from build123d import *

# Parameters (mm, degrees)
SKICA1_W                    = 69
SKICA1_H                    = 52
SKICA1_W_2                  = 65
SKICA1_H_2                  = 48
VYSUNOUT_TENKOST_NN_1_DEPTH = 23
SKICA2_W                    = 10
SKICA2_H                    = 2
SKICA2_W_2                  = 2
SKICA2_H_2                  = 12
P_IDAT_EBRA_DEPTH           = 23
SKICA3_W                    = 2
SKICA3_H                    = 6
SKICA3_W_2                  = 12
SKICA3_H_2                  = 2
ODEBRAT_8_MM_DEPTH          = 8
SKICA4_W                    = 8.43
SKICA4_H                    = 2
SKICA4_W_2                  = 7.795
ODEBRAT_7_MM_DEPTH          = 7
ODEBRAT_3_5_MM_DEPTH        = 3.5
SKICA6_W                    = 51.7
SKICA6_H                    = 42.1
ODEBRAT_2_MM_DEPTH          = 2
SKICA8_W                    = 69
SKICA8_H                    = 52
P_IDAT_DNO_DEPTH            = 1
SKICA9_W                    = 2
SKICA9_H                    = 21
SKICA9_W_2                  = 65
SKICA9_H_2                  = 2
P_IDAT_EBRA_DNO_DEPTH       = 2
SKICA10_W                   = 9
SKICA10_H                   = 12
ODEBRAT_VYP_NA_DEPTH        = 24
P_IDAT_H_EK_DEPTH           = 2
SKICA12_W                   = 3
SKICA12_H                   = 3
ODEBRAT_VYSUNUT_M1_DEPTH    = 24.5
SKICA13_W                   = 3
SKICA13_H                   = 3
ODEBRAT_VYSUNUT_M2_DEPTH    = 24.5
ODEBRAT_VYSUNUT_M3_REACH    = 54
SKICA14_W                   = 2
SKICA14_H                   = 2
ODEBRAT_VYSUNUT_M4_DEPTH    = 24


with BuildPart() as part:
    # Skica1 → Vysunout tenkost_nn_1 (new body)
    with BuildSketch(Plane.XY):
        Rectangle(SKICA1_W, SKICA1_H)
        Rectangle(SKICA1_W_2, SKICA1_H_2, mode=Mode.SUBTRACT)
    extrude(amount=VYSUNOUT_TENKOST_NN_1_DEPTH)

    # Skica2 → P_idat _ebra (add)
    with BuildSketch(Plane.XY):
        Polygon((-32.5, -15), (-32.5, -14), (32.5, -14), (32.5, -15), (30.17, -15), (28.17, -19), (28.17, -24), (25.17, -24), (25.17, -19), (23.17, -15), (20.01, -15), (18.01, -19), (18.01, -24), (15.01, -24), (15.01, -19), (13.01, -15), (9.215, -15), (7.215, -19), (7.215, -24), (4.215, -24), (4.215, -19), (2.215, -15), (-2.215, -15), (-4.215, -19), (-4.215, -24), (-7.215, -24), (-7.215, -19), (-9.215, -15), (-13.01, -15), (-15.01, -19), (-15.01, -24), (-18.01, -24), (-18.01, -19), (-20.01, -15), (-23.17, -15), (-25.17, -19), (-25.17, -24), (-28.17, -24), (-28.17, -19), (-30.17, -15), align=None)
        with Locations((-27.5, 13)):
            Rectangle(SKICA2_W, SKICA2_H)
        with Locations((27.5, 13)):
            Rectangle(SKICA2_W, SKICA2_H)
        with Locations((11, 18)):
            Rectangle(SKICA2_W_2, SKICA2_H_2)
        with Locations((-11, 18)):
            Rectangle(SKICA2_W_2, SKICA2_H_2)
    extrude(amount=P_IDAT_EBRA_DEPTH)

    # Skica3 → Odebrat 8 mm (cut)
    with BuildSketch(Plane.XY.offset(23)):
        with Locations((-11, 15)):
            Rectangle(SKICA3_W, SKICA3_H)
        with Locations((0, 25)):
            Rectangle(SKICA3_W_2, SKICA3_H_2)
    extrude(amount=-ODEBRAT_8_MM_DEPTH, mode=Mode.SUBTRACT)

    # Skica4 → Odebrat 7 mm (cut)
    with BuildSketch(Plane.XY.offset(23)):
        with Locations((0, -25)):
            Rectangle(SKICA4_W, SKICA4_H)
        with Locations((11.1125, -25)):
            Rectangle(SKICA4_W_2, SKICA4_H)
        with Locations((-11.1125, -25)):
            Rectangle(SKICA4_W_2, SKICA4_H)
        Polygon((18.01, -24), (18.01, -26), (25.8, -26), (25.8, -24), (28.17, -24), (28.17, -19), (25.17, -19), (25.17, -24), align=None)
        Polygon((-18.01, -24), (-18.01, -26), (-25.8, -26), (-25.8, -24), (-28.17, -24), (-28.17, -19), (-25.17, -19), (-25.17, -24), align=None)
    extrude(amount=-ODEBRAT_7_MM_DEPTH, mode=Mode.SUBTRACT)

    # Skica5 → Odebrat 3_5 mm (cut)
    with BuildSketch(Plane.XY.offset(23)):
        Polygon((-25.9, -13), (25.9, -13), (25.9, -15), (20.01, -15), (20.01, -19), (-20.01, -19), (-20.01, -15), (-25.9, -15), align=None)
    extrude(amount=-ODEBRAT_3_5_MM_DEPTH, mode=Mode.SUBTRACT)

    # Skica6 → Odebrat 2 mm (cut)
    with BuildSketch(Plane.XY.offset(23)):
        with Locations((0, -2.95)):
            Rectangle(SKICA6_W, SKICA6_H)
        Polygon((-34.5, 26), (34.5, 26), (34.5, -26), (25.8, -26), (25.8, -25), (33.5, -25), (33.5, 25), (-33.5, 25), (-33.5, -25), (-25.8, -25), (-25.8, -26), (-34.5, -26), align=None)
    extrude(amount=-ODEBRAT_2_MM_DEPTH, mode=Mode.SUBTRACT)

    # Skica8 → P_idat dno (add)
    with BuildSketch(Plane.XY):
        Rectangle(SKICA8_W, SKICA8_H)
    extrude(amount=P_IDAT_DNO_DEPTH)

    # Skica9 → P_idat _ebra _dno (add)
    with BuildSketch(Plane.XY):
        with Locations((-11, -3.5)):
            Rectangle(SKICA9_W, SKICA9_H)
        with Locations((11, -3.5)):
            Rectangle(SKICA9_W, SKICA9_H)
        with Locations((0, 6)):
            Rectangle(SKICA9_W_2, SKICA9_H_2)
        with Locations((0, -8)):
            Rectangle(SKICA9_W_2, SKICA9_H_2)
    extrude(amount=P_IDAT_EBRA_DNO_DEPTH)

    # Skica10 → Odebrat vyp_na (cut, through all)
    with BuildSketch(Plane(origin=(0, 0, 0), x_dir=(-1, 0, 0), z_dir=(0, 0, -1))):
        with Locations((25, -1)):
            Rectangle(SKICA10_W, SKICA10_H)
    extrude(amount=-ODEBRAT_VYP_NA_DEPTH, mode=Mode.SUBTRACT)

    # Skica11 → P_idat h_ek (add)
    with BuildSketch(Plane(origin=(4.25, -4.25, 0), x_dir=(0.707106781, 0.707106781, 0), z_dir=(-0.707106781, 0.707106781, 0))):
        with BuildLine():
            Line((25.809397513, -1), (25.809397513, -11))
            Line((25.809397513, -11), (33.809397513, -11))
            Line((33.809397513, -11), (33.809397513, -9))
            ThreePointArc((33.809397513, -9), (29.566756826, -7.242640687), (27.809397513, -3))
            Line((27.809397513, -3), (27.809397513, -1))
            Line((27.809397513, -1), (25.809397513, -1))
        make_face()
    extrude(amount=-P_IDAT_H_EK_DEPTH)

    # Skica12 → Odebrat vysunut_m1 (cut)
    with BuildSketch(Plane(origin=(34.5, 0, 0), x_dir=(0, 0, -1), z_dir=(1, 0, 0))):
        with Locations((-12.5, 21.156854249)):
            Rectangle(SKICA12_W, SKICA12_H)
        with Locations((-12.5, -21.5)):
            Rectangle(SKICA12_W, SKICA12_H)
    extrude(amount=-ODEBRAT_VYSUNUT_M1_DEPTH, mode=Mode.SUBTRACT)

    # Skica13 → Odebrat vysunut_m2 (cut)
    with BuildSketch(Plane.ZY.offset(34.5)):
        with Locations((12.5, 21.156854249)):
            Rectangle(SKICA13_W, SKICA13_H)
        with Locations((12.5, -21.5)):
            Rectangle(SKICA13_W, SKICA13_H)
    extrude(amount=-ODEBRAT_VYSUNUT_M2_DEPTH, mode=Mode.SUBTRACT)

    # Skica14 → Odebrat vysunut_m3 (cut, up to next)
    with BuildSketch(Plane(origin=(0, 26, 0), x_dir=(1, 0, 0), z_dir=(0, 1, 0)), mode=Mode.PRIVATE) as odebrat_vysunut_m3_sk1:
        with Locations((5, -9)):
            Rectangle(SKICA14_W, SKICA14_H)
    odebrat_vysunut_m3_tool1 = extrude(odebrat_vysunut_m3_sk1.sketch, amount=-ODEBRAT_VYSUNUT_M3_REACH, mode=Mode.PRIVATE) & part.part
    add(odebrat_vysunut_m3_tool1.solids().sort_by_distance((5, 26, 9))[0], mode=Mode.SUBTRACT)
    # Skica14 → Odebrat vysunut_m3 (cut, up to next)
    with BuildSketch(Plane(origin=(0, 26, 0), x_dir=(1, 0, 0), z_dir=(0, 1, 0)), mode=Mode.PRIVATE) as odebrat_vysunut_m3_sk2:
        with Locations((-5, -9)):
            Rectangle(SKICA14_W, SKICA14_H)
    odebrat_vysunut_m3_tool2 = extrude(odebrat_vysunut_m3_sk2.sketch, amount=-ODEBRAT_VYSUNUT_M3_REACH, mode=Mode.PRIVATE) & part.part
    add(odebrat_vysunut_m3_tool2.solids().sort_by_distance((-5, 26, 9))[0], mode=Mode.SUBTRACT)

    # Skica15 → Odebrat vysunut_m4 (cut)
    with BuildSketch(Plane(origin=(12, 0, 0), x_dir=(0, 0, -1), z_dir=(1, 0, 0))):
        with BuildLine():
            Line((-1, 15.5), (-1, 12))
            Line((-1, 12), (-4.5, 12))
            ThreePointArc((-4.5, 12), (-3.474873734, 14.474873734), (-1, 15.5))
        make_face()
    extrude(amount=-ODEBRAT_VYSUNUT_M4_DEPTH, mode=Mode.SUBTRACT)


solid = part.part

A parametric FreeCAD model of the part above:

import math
import FreeCAD as App
import Part
import Sketcher

V = App.Vector
Q = App.Units.Quantity


def add_polygon(sketch, points):
    """Adds a closed chain of lines whose ends are joined by coincident constraints."""
    first, n = sketch.GeometryCount, len(points)
    for a, b in zip(points, points[1:] + points[:1]):
        sketch.addGeometry(Part.LineSegment(App.Vector(*a, 0), App.Vector(*b, 0)), False)
    for i in range(n):
        sketch.addConstraint(Sketcher.Constraint("Coincident", first + i, 2, first + (i + 1) % n, 1))

doc = App.newDocument("Part")
body = doc.addObject("PartDesign::Body", "Body")

sketch1 = doc.addObject("Sketcher::SketchObject", "Sketch")
body.addObject(sketch1)
sketch1.AttachmentSupport = (doc.XY_Plane, [""])
sketch1.MapMode = "FlatFace"
add_polygon(sketch1, [(-34.5, 26), (-34.5, -26), (34.5, -26), (34.5, 26)])
add_polygon(sketch1, [(32.5, -24), (-32.5, -24), (-32.5, 24), (32.5, 24)])
sketch1.addConstraint(Sketcher.Constraint("Vertical", 0))
sketch1.addConstraint(Sketcher.Constraint("Horizontal", 1))
sketch1.addConstraint(Sketcher.Constraint("Vertical", 2))
sketch1.addConstraint(Sketcher.Constraint("Horizontal", 3))
sketch1.addConstraint(Sketcher.Constraint("Horizontal", 4))
sketch1.addConstraint(Sketcher.Constraint("Vertical", 5))
sketch1.addConstraint(Sketcher.Constraint("Horizontal", 6))
sketch1.addConstraint(Sketcher.Constraint("Vertical", 7))
sketch1.addConstraint(Sketcher.Constraint("Symmetric", 0, 2, 2, 2, -1, 1))
sketch1.addConstraint(Sketcher.Constraint("Symmetric", 4, 2, 6, 2, -1, 1))
sketch1.addConstraint(Sketcher.Constraint("DistanceX", 1, 1, 1, 2, Q("69 mm")))
sketch1.addConstraint(Sketcher.Constraint("DistanceX", 4, 2, 4, 1, Q("65 mm")))
sketch1.addConstraint(Sketcher.Constraint("DistanceY", 0, 2, 0, 1, Q("52 mm")))
sketch1.addConstraint(Sketcher.Constraint("DistanceY", 5, 1, 5, 2, Q("48 mm")))
pad1 = doc.addObject("PartDesign::Pad", "Pad")
body.addObject(pad1)
pad1.Profile = sketch1
pad1.Length = 23

sketch2 = doc.addObject("Sketcher::SketchObject", "Sketch001")
body.addObject(sketch2)
sketch2.AttachmentSupport = (doc.XY_Plane, [""])
sketch2.MapMode = "FlatFace"
add_polygon(sketch2, [(-32.5, -14), (-32.5, -15), (-30.17, -15), (-28.17, -19), (-28.17, -24), (-25.17, -24), (-25.17, -19), (-23.17, -15), (-20.01, -15), (-18.01, -19), (-18.01, -24), (-15.01, -24), (-15.01, -19), (-13.01, -15), (-9.215, -15), (-7.215, -19), (-7.215, -24), (-4.215, -24), (-4.215, -19), (-2.215, -15), (2.215, -15), (4.215, -19), (4.215, -24), (7.215, -24), (7.215, -19), (9.215, -15), (13.01, -15), (15.01, -19), (15.01, -24), (18.01, -24), (18.01, -19), (20.01, -15), (23.17, -15), (25.17, -19), (25.17, -24), (28.17, -24), (28.17, -19), (30.17, -15), (32.5, -15), (32.5, -14)])
add_polygon(sketch2, [(-32.5, 14), (-32.5, 12), (-22.5, 12), (-22.5, 14)])
add_polygon(sketch2, [(22.5, 14), (22.5, 12), (32.5, 12), (32.5, 14)])
add_polygon(sketch2, [(10, 24), (10, 12), (12, 12), (12, 24)])
add_polygon(sketch2, [(-12, 24), (-12, 12), (-10, 12), (-10, 24)])
sketch2.addConstraint(Sketcher.Constraint("Vertical", 0))
sketch2.addConstraint(Sketcher.Constraint("Horizontal", 1))
sketch2.addConstraint(Sketcher.Constraint("Vertical", 3))
sketch2.addConstraint(Sketcher.Constraint("Horizontal", 4))
sketch2.addConstraint(Sketcher.Constraint("Vertical", 5))
sketch2.addConstraint(Sketcher.Constraint("Horizontal", 7))
sketch2.addConstraint(Sketcher.Constraint("Vertical", 9))
sketch2.addConstraint(Sketcher.Constraint("Horizontal", 10))
sketch2.addConstraint(Sketcher.Constraint("Vertical", 11))
sketch2.addConstraint(Sketcher.Constraint("Horizontal", 13))
sketch2.addConstraint(Sketcher.Constraint("Vertical", 15))
sketch2.addConstraint(Sketcher.Constraint("Horizontal", 16))
sketch2.addConstraint(Sketcher.Constraint("Vertical", 17))
sketch2.addConstraint(Sketcher.Constraint("Horizontal", 19))
sketch2.addConstraint(Sketcher.Constraint("Vertical", 21))
sketch2.addConstraint(Sketcher.Constraint("Horizontal", 22))
sketch2.addConstraint(Sketcher.Constraint("Vertical", 23))
sketch2.addConstraint(Sketcher.Constraint("Horizontal", 25))
sketch2.addConstraint(Sketcher.Constraint("Vertical", 27))
sketch2.addConstraint(Sketcher.Constraint("Horizontal", 28))
sketch2.addConstraint(Sketcher.Constraint("Vertical", 29))
sketch2.addConstraint(Sketcher.Constraint("Horizontal", 31))
sketch2.addConstraint(Sketcher.Constraint("Vertical", 33))
sketch2.addConstraint(Sketcher.Constraint("Horizontal", 34))
sketch2.addConstraint(Sketcher.Constraint("Vertical", 35))
sketch2.addConstraint(Sketcher.Constraint("Horizontal", 37))
sketch2.addConstraint(Sketcher.Constraint("Vertical", 38))
sketch2.addConstraint(Sketcher.Constraint("Horizontal", 39))
sketch2.addConstraint(Sketcher.Constraint("Vertical", 40))
sketch2.addConstraint(Sketcher.Constraint("Horizontal", 41))
sketch2.addConstraint(Sketcher.Constraint("Vertical", 42))
sketch2.addConstraint(Sketcher.Constraint("Horizontal", 43))
sketch2.addConstraint(Sketcher.Constraint("Vertical", 44))
sketch2.addConstraint(Sketcher.Constraint("Horizontal", 45))
sketch2.addConstraint(Sketcher.Constraint("Vertical", 46))
sketch2.addConstraint(Sketcher.Constraint("Horizontal", 47))
sketch2.addConstraint(Sketcher.Constraint("Vertical", 48))
sketch2.addConstraint(Sketcher.Constraint("Horizontal", 49))
sketch2.addConstraint(Sketcher.Constraint("Vertical", 50))
sketch2.addConstraint(Sketcher.Constraint("Horizontal", 51))
sketch2.addConstraint(Sketcher.Constraint("Vertical", 52))
sketch2.addConstraint(Sketcher.Constraint("Horizontal", 53))
sketch2.addConstraint(Sketcher.Constraint("Vertical", 54))
sketch2.addConstraint(Sketcher.Constraint("Horizontal", 55))
sketch2.addConstraint(Sketcher.Constraint("Symmetric", 38, 2, 43, 2, -1, 1))
sketch2.addConstraint(Sketcher.Constraint("Symmetric", 39, 2, 46, 2, -1, 1))
sketch2.addConstraint(Sketcher.Constraint("Symmetric", 17, 2, 20, 2, -2))
sketch2.addConstraint(Sketcher.Constraint("Symmetric", 15, 2, 22, 2, -2))
sketch2.addConstraint(Sketcher.Constraint("Symmetric", 13, 2, 24, 2, -2))
sketch2.addConstraint(Sketcher.Constraint("Symmetric", 11, 2, 26, 2, -2))
sketch2.addConstraint(Sketcher.Constraint("Symmetric", 9, 2, 28, 2, -2))
sketch2.addConstraint(Sketcher.Constraint("Symmetric", 7, 2, 30, 2, -2))
sketch2.addConstraint(Sketcher.Constraint("Symmetric", 5, 2, 32, 2, -2))
sketch2.addConstraint(Sketcher.Constraint("Symmetric", 3, 2, 34, 2, -2))
sketch2.addConstraint(Sketcher.Constraint("Symmetric", 1, 2, 36, 2, -2))
sketch2.addConstraint(Sketcher.Constraint("Symmetric", 41, 2, 44, 2, -2))
sketch2.addConstraint(Sketcher.Constraint("Symmetric", 49, 2, 52, 2, -2))
sketch2.addConstraint(Sketcher.Constraint("Symmetric", 51, 2, 54, 2, -2))
sketch2.addConstraint(Sketcher.Constraint("Parallel", 2, 8))
sketch2.addConstraint(Sketcher.Constraint("Parallel", 6, 12))
sketch2.addConstraint(Sketcher.Constraint("Parallel", 8, 14))
sketch2.addConstraint(Sketcher.Constraint("Parallel", 12, 18))
sketch2.addConstraint(Sketcher.Constraint("Parallel", 14, 20))
sketch2.addConstraint(Sketcher.Constraint("Parallel", 18, 24))
sketch2.addConstraint(Sketcher.Constraint("Parallel", 20, 26))
sketch2.addConstraint(Sketcher.Constraint("Parallel", 24, 30))
sketch2.addConstraint(Sketcher.Constraint("Parallel", 26, 32))
sketch2.addConstraint(Sketcher.Constraint("Parallel", 30, 36))
sketch2.addConstraint(Sketcher.Constraint("Horizontal", 2, 2, 5, 2))
sketch2.addConstraint(Sketcher.Constraint("Horizontal", 1, 2, 6, 2))
sketch2.addConstraint(Sketcher.Constraint("Horizontal", 5, 2, 8, 2))
sketch2.addConstraint(Sketcher.Constraint("Horizontal", 4, 2, 9, 2))
sketch2.addConstraint(Sketcher.Constraint("Horizontal", 8, 2, 11, 2))
sketch2.addConstraint(Sketcher.Constraint("Horizontal", 7, 2, 12, 2))
sketch2.addConstraint(Sketcher.Constraint("Horizontal", 11, 2, 14, 2))
sketch2.addConstraint(Sketcher.Constraint("Horizontal", 10, 2, 15, 2))
sketch2.addConstraint(Sketcher.Constraint("Horizontal", 14, 2, 17, 2))
sketch2.addConstraint(Sketcher.Constraint("Horizontal", 13, 2, 18, 2))
sketch2.addConstraint(Sketcher.Constraint("Horizontal", 20, 2, 23, 2))
sketch2.addConstraint(Sketcher.Constraint("Horizontal", 45, 2, 48, 2))
sketch2.addConstraint(Sketcher.Constraint("Vertical", 39, 2, 40, 2))
sketch2.addConstraint(Sketcher.Constraint("Equal", 4, 10))
sketch2.addConstraint(Sketcher.Constraint("Equal", 10, 16))
sketch2.addConstraint(Sketcher.Constraint("Equal", 55, 40))
sketch2.addConstraint(Sketcher.Constraint("DistanceX", 4, 1, 4, 2, Q("3 mm")))
sketch2.addConstraint(Sketcher.Constraint("DistanceX", 39, 2, 39, 1, Q("65 mm")))
sketch2.addConstraint(Sketcher.Constraint("DistanceX", 41, 1, 41, 2, Q("10 mm")))
sketch2.addConstraint(Sketcher.Constraint("DistanceX", 49, 1, 49, 2, Q("2 mm")))
sketch2.addConstraint(Sketcher.Constraint("DistanceY", 0, 2, 0, 1, Q("1 mm")))
sketch2.addConstraint(Sketcher.Constraint("DistanceY", 3, 2, 3, 1, Q("5 mm")))
sketch2.addConstraint(Sketcher.Constraint("DistanceY", 48, 2, 48, 1, Q("12 mm")))
sketch2.addConstraint(Sketcher.Constraint("DistanceY", 0, 2, -1, 1, Q("15 mm")))
sketch2.addConstraint(Sketcher.Constraint("DistanceY", 2, 2, -1, 1, Q("19 mm")))
sketch2.addConstraint(Sketcher.Constraint("DistanceX", -1, 1, 48, 2, Q("10 mm")))
sketch2.addConstraint(Sketcher.Constraint("DistanceX", 1, 2, 2, 2, Q("2 mm")))
sketch2.addConstraint(Sketcher.Constraint("DistanceX", 1, 1, 1, 2, Q("2.33 mm")))
sketch2.addConstraint(Sketcher.Constraint("DistanceX", 7, 1, 7, 2, Q("3.16 mm")))
sketch2.addConstraint(Sketcher.Constraint("DistanceX", 19, 1, 19, 2, Q("4.43 mm")))
pad2 = doc.addObject("PartDesign::Pad", "Pad001")
body.addObject(pad2)
pad2.Profile = sketch2
pad2.Length = 23

sketch3 = doc.addObject("Sketcher::SketchObject", "Sketch002")
body.addObject(sketch3)
sketch3.AttachmentSupport = (doc.XY_Plane, [""])
sketch3.MapMode = "FlatFace"
sketch3.AttachmentOffset = App.Placement(V(0, 0, 23), App.Rotation())
add_polygon(sketch3, [(-12, 18), (-12, 12), (-10, 12), (-10, 18)])
add_polygon(sketch3, [(-6, 26), (-6, 24), (6, 24), (6, 26)])
sketch3.addConstraint(Sketcher.Constraint("Vertical", 0))
sketch3.addConstraint(Sketcher.Constraint("Horizontal", 1))
sketch3.addConstraint(Sketcher.Constraint("Vertical", 2))
sketch3.addConstraint(Sketcher.Constraint("Horizontal", 3))
sketch3.addConstraint(Sketcher.Constraint("Vertical", 4))
sketch3.addConstraint(Sketcher.Constraint("Horizontal", 5))
sketch3.addConstraint(Sketcher.Constraint("Vertical", 6))
sketch3.addConstraint(Sketcher.Constraint("Horizontal", 7))
sketch3.addConstraint(Sketcher.Constraint("Equal", 3, 4))
sketch3.addConstraint(Sketcher.Constraint("DistanceX", 1, 1, 1, 2, Q("2 mm")))
sketch3.addConstraint(Sketcher.Constraint("DistanceX", 5, 1, 5, 2, Q("12 mm")))
sketch3.addConstraint(Sketcher.Constraint("DistanceY", 0, 2, 0, 1, Q("6 mm")))
sketch3.addConstraint(Sketcher.Constraint("DistanceX", 0, 2, -1, 1, Q("12 mm")))
sketch3.addConstraint(Sketcher.Constraint("DistanceY", -1, 1, 0, 2, Q("12 mm")))
sketch3.addConstraint(Sketcher.Constraint("DistanceX", 4, 2, -1, 1, Q("6 mm")))
sketch3.addConstraint(Sketcher.Constraint("DistanceY", -1, 1, 4, 2, Q("24 mm")))
pocket1 = doc.addObject("PartDesign::Pocket", "Pocket")
body.addObject(pocket1)
pocket1.Profile = sketch3
pocket1.Length = 8

sketch4 = doc.addObject("Sketcher::SketchObject", "Sketch003")
body.addObject(sketch4)
sketch4.AttachmentSupport = (doc.XY_Plane, [""])
sketch4.MapMode = "FlatFace"
sketch4.AttachmentOffset = App.Placement(V(0, 0, 23), App.Rotation())
add_polygon(sketch4, [(-4.215, -24), (-4.215, -26), (4.215, -26), (4.215, -24)])
add_polygon(sketch4, [(7.215, -24), (7.215, -26), (15.01, -26), (15.01, -24)])
add_polygon(sketch4, [(-15.01, -24), (-15.01, -26), (-7.215, -26), (-7.215, -24)])
add_polygon(sketch4, [(18.01, -24), (18.01, -26), (25.8, -26), (25.8, -24), (28.17, -24), (28.17, -19), (25.17, -19), (25.17, -24)])
add_polygon(sketch4, [(-18.01, -26), (-18.01, -24), (-25.17, -24), (-25.17, -19), (-28.17, -19), (-28.17, -24), (-25.8, -24), (-25.8, -26)])
sketch4.addConstraint(Sketcher.Constraint("Vertical", 0))
sketch4.addConstraint(Sketcher.Constraint("Horizontal", 1))
sketch4.addConstraint(Sketcher.Constraint("Vertical", 2))
sketch4.addConstraint(Sketcher.Constraint("Horizontal", 3))
sketch4.addConstraint(Sketcher.Constraint("Vertical", 4))
sketch4.addConstraint(Sketcher.Constraint("Horizontal", 5))
sketch4.addConstraint(Sketcher.Constraint("Vertical", 6))
sketch4.addConstraint(Sketcher.Constraint("Horizontal", 7))
sketch4.addConstraint(Sketcher.Constraint("Vertical", 8))
sketch4.addConstraint(Sketcher.Constraint("Horizontal", 9))
sketch4.addConstraint(Sketcher.Constraint("Vertical", 10))
sketch4.addConstraint(Sketcher.Constraint("Horizontal", 11))
sketch4.addConstraint(Sketcher.Constraint("Vertical", 12))
sketch4.addConstraint(Sketcher.Constraint("Horizontal", 13))
sketch4.addConstraint(Sketcher.Constraint("Vertical", 14))
sketch4.addConstraint(Sketcher.Constraint("Horizontal", 15))
sketch4.addConstraint(Sketcher.Constraint("Vertical", 16))
sketch4.addConstraint(Sketcher.Constraint("Horizontal", 17))
sketch4.addConstraint(Sketcher.Constraint("Vertical", 18))
sketch4.addConstraint(Sketcher.Constraint("Horizontal", 19))
sketch4.addConstraint(Sketcher.Constraint("Vertical", 20))
sketch4.addConstraint(Sketcher.Constraint("Horizontal", 21))
sketch4.addConstraint(Sketcher.Constraint("Vertical", 22))
sketch4.addConstraint(Sketcher.Constraint("Horizontal", 23))
sketch4.addConstraint(Sketcher.Constraint("Vertical", 24))
sketch4.addConstraint(Sketcher.Constraint("Horizontal", 25))
sketch4.addConstraint(Sketcher.Constraint("Vertical", 26))
sketch4.addConstraint(Sketcher.Constraint("Horizontal", 27))
sketch4.addConstraint(Sketcher.Constraint("Symmetric", 5, 2, 8, 2, -2))
sketch4.addConstraint(Sketcher.Constraint("Symmetric", 7, 2, 10, 2, -2))
sketch4.addConstraint(Sketcher.Constraint("Symmetric", 19, 2, 20, 2, -2))
sketch4.addConstraint(Sketcher.Constraint("Symmetric", 17, 2, 22, 2, -2))
sketch4.addConstraint(Sketcher.Constraint("Symmetric", 15, 2, 24, 2, -2))
sketch4.addConstraint(Sketcher.Constraint("Symmetric", 13, 2, 26, 2, -2))
sketch4.addConstraint(Sketcher.Constraint("Horizontal", 1, 2, 4, 2))
sketch4.addConstraint(Sketcher.Constraint("Horizontal", 3, 2, 6, 2))
sketch4.addConstraint(Sketcher.Constraint("Horizontal", 9, 2, 12, 2))
sketch4.addConstraint(Sketcher.Constraint("Horizontal", 11, 2, 14, 2))
sketch4.addConstraint(Sketcher.Constraint("Horizontal", 15, 2, 18, 2))
sketch4.addConstraint(Sketcher.Constraint("DistanceX", 17, 2, 17, 1, Q("3 mm")))
sketch4.addConstraint(Sketcher.Constraint("DistanceY", 0, 2, 0, 1, Q("2 mm")))
sketch4.addConstraint(Sketcher.Constraint("DistanceY", 16, 1, 16, 2, Q("5 mm")))
sketch4.addConstraint(Sketcher.Constraint("DistanceY", 0, 2, -1, 1, Q("26 mm")))
sketch4.addConstraint(Sketcher.Constraint("DistanceX", 1, 2, 4, 2, Q("3 mm")))
sketch4.addConstraint(Sketcher.Constraint("DistanceX", 9, 2, 0, 2, Q("3 mm")))
sketch4.addConstraint(Sketcher.Constraint("DistanceX", 5, 2, 12, 2, Q("3 mm")))
sketch4.addConstraint(Sketcher.Constraint("DistanceX", 1, 1, 1, 2, Q("8.43 mm")))
sketch4.addConstraint(Sketcher.Constraint("DistanceX", 13, 1, 13, 2, Q("7.79 mm")))
sketch4.addConstraint(Sketcher.Constraint("DistanceX", 15, 1, 15, 2, Q("2.37 mm")))
sketch4.addConstraint(Sketcher.Constraint("DistanceX", -1, 1, 13, 2, Q("25.8 mm")))
pocket2 = doc.addObject("PartDesign::Pocket", "Pocket001")
body.addObject(pocket2)
pocket2.Profile = sketch4
pocket2.Length = 7

sketch5 = doc.addObject("Sketcher::SketchObject", "Sketch004")
body.addObject(sketch5)
sketch5.AttachmentSupport = (doc.XY_Plane, [""])
sketch5.MapMode = "FlatFace"
sketch5.AttachmentOffset = App.Placement(V(0, 0, 23), App.Rotation())
add_polygon(sketch5, [(25.9, -13), (-25.9, -13), (-25.9, -15), (-20.01, -15), (-20.01, -19), (20.01, -19), (20.01, -15), (25.9, -15)])
sketch5.addConstraint(Sketcher.Constraint("Horizontal", 0))
sketch5.addConstraint(Sketcher.Constraint("Vertical", 1))
sketch5.addConstraint(Sketcher.Constraint("Horizontal", 2))
sketch5.addConstraint(Sketcher.Constraint("Vertical", 3))
sketch5.addConstraint(Sketcher.Constraint("Horizontal", 4))
sketch5.addConstraint(Sketcher.Constraint("Vertical", 5))
sketch5.addConstraint(Sketcher.Constraint("Horizontal", 6))
sketch5.addConstraint(Sketcher.Constraint("Vertical", 7))
sketch5.addConstraint(Sketcher.Constraint("Symmetric", 2, 2, 5, 2, -2))
sketch5.addConstraint(Sketcher.Constraint("Equal", 2, 6))
sketch5.addConstraint(Sketcher.Constraint("DistanceY", 1, 2, 1, 1, Q("2 mm")))
sketch5.addConstraint(Sketcher.Constraint("DistanceY", 3, 2, 3, 1, Q("4 mm")))
sketch5.addConstraint(Sketcher.Constraint("DistanceX", 0, 2, 0, 1, Q("51.8 mm")))
sketch5.addConstraint(Sketcher.Constraint("DistanceY", 0, 2, -1, 1, Q("13 mm")))
sketch5.addConstraint(Sketcher.Constraint("DistanceX", 2, 1, 2, 2, Q("5.89 mm")))
pocket3 = doc.addObject("PartDesign::Pocket", "Pocket002")
body.addObject(pocket3)
pocket3.Profile = sketch5
pocket3.Length = 3.5

sketch6 = doc.addObject("Sketcher::SketchObject", "Sketch005")
body.addObject(sketch6)
sketch6.AttachmentSupport = (doc.XY_Plane, [""])
sketch6.MapMode = "FlatFace"
sketch6.AttachmentOffset = App.Placement(V(0, 0, 23), App.Rotation())
add_polygon(sketch6, [(-25.85, 18.1), (-25.85, -24), (25.85, -24), (25.85, 18.1)])
add_polygon(sketch6, [(34.5, 26), (-34.5, 26), (-34.5, -26), (-25.8, -26), (-25.8, -25), (-33.5, -25), (-33.5, 25), (33.5, 25), (33.5, -25), (25.8, -25), (25.8, -26), (34.5, -26)])
sketch6.addConstraint(Sketcher.Constraint("Vertical", 0))
sketch6.addConstraint(Sketcher.Constraint("Horizontal", 1))
sketch6.addConstraint(Sketcher.Constraint("Vertical", 2))
sketch6.addConstraint(Sketcher.Constraint("Horizontal", 3))
sketch6.addConstraint(Sketcher.Constraint("Horizontal", 4))
sketch6.addConstraint(Sketcher.Constraint("Vertical", 5))
sketch6.addConstraint(Sketcher.Constraint("Horizontal", 6))
sketch6.addConstraint(Sketcher.Constraint("Vertical", 7))
sketch6.addConstraint(Sketcher.Constraint("Horizontal", 8))
sketch6.addConstraint(Sketcher.Constraint("Vertical", 9))
sketch6.addConstraint(Sketcher.Constraint("Horizontal", 10))
sketch6.addConstraint(Sketcher.Constraint("Vertical", 11))
sketch6.addConstraint(Sketcher.Constraint("Horizontal", 12))
sketch6.addConstraint(Sketcher.Constraint("Vertical", 13))
sketch6.addConstraint(Sketcher.Constraint("Horizontal", 14))
sketch6.addConstraint(Sketcher.Constraint("Vertical", 15))
sketch6.addConstraint(Sketcher.Constraint("Symmetric", 8, 2, 10, 2, -1, 1))
sketch6.addConstraint(Sketcher.Constraint("Symmetric", 4, 2, 14, 2, -1, 1))
sketch6.addConstraint(Sketcher.Constraint("Symmetric", 7, 2, 12, 2, -2))
sketch6.addConstraint(Sketcher.Constraint("Horizontal", 6, 2, 13, 2))
sketch6.addConstraint(Sketcher.Constraint("DistanceX", 4, 2, 4, 1, Q("69 mm")))
sketch6.addConstraint(Sketcher.Constraint("DistanceX", 10, 1, 10, 2, Q("67 mm")))
sketch6.addConstraint(Sketcher.Constraint("DistanceY", 5, 2, 5, 1, Q("52 mm")))
sketch6.addConstraint(Sketcher.Constraint("DistanceY", 7, 1, 7, 2, Q("1 mm")))
sketch6.addConstraint(Sketcher.Constraint("DistanceX", 1, 1, 1, 2, Q("51.7 mm")))
sketch6.addConstraint(Sketcher.Constraint("DistanceX", 6, 1, 6, 2, Q("8.7 mm")))
sketch6.addConstraint(Sketcher.Constraint("DistanceY", 0, 2, 0, 1, Q("42.1 mm")))
sketch6.addConstraint(Sketcher.Constraint("DistanceY", 0, 2, -1, 1, Q("24 mm")))
sketch6.addConstraint(Sketcher.Constraint("DistanceX", 0, 2, -1, 1, Q("25.85 mm")))
pocket4 = doc.addObject("PartDesign::Pocket", "Pocket003")
body.addObject(pocket4)
pocket4.Profile = sketch6
pocket4.Length = 2

sketch7 = doc.addObject("Sketcher::SketchObject", "Sketch006")
body.addObject(sketch7)
sketch7.AttachmentSupport = (doc.XY_Plane, [""])
sketch7.MapMode = "FlatFace"
add_polygon(sketch7, [(-34.5, 26), (-34.5, -26), (34.5, -26), (34.5, 26)])
sketch7.addConstraint(Sketcher.Constraint("Vertical", 0))
sketch7.addConstraint(Sketcher.Constraint("Horizontal", 1))
sketch7.addConstraint(Sketcher.Constraint("Vertical", 2))
sketch7.addConstraint(Sketcher.Constraint("Horizontal", 3))
sketch7.addConstraint(Sketcher.Constraint("Symmetric", 0, 2, 2, 2, -1, 1))
sketch7.addConstraint(Sketcher.Constraint("DistanceX", 1, 1, 1, 2, Q("69 mm")))
sketch7.addConstraint(Sketcher.Constraint("DistanceY", 0, 2, 0, 1, Q("52 mm")))
pad3 = doc.addObject("PartDesign::Pad", "Pad002")
body.addObject(pad3)
pad3.Profile = sketch7
pad3.Length = 1

sketch8 = doc.addObject("Sketcher::SketchObject", "Sketch007")
body.addObject(sketch8)
sketch8.AttachmentSupport = (doc.XY_Plane, [""])
sketch8.MapMode = "FlatFace"
add_polygon(sketch8, [(-12, -9), (-12, -14), (-10, -14), (-10, -9), (10, -9), (10, -14), (12, -14), (12, -9), (32.5, -9), (32.5, -7), (12, -7), (12, 5), (32.5, 5), (32.5, 7), (-32.5, 7), (-32.5, 5), (-12, 5), (-12, -7), (-32.5, -7), (-32.5, -9)])
add_polygon(sketch8, [(10, 5), (10, -7), (-10, -7), (-10, 5)])
sketch8.addConstraint(Sketcher.Constraint("Vertical", 0))
sketch8.addConstraint(Sketcher.Constraint("Horizontal", 1))
sketch8.addConstraint(Sketcher.Constraint("Vertical", 2))
sketch8.addConstraint(Sketcher.Constraint("Horizontal", 3))
sketch8.addConstraint(Sketcher.Constraint("Vertical", 4))
sketch8.addConstraint(Sketcher.Constraint("Horizontal", 5))
sketch8.addConstraint(Sketcher.Constraint("Vertical", 6))
sketch8.addConstraint(Sketcher.Constraint("Horizontal", 7))
sketch8.addConstraint(Sketcher.Constraint("Vertical", 8))
sketch8.addConstraint(Sketcher.Constraint("Horizontal", 9))
sketch8.addConstraint(Sketcher.Constraint("Vertical", 10))
sketch8.addConstraint(Sketcher.Constraint("Horizontal", 11))
sketch8.addConstraint(Sketcher.Constraint("Vertical", 12))
sketch8.addConstraint(Sketcher.Constraint("Horizontal", 13))
sketch8.addConstraint(Sketcher.Constraint("Vertical", 14))
sketch8.addConstraint(Sketcher.Constraint("Horizontal", 15))
sketch8.addConstraint(Sketcher.Constraint("Vertical", 16))
sketch8.addConstraint(Sketcher.Constraint("Horizontal", 17))
sketch8.addConstraint(Sketcher.Constraint("Vertical", 18))
sketch8.addConstraint(Sketcher.Constraint("Horizontal", 19))
sketch8.addConstraint(Sketcher.Constraint("Vertical", 20))
sketch8.addConstraint(Sketcher.Constraint("Horizontal", 21))
sketch8.addConstraint(Sketcher.Constraint("Vertical", 22))
sketch8.addConstraint(Sketcher.Constraint("Horizontal", 23))
sketch8.addConstraint(Sketcher.Constraint("Symmetric", 8, 2, 13, 2, -1, 1))
sketch8.addConstraint(Sketcher.Constraint("Symmetric", 12, 2, 17, 2, -1, 1))
sketch8.addConstraint(Sketcher.Constraint("Symmetric", 1, 2, 4, 2, -2))
sketch8.addConstraint(Sketcher.Constraint("Symmetric", 11, 2, 14, 2, -2))
sketch8.addConstraint(Sketcher.Constraint("Symmetric", 6, 2, 19, 2, -2))
sketch8.addConstraint(Sketcher.Constraint("Horizontal", 3, 2, 6, 2))
sketch8.addConstraint(Sketcher.Constraint("Horizontal", 17, 2, 20, 2))
sketch8.addConstraint(Sketcher.Constraint("Horizontal", 15, 2, 22, 2))
sketch8.addConstraint(Sketcher.Constraint("Vertical", 6, 2, 9, 2))
sketch8.addConstraint(Sketcher.Constraint("Vertical", 0, 2, 15, 2))
sketch8.addConstraint(Sketcher.Constraint("Vertical", 4, 2, 20, 2))
sketch8.addConstraint(Sketcher.Constraint("Vertical", 2, 2, 21, 2))
sketch8.addConstraint(Sketcher.Constraint("Equal", 5, 8))
sketch8.addConstraint(Sketcher.Constraint("Equal", 8, 12))
sketch8.addConstraint(Sketcher.Constraint("DistanceX", 1, 1, 1, 2, Q("2 mm")))
sketch8.addConstraint(Sketcher.Constraint("DistanceX", 3, 1, 3, 2, Q("20 mm")))
sketch8.addConstraint(Sketcher.Constraint("DistanceX", 13, 2, 13, 1, Q("65 mm")))
sketch8.addConstraint(Sketcher.Constraint("DistanceY", 0, 2, 0, 1, Q("5 mm")))
sketch8.addConstraint(Sketcher.Constraint("DistanceY", 10, 1, 10, 2, Q("12 mm")))
pad4 = doc.addObject("PartDesign::Pad", "Pad003")
body.addObject(pad4)
pad4.Profile = sketch8
pad4.Length = 2

sketch9 = doc.addObject("Sketcher::SketchObject", "Sketch008")
body.addObject(sketch9)
sketch9.AttachmentSupport = (doc.XY_Plane, [""])
sketch9.MapMode = "FlatFace"
add_polygon(sketch9, [(-20.5, 5), (-20.5, -7), (-29.5, -7), (-29.5, 5)])
sketch9.addConstraint(Sketcher.Constraint("Vertical", 0))
sketch9.addConstraint(Sketcher.Constraint("Horizontal", 1))
sketch9.addConstraint(Sketcher.Constraint("Vertical", 2))
sketch9.addConstraint(Sketcher.Constraint("Horizontal", 3))
sketch9.addConstraint(Sketcher.Constraint("DistanceX", 1, 2, 1, 1, Q("9 mm")))
sketch9.addConstraint(Sketcher.Constraint("DistanceY", 0, 2, 0, 1, Q("12 mm")))
sketch9.addConstraint(Sketcher.Constraint("DistanceY", 0, 2, -1, 1, Q("7 mm")))
sketch9.addConstraint(Sketcher.Constraint("DistanceX", 0, 2, -1, 1, Q("20.5 mm")))
pocket5 = doc.addObject("PartDesign::Pocket", "Pocket004")
body.addObject(pocket5)
pocket5.Profile = sketch9
pocket5.Type = "ThroughAll"
pocket5.Reversed = True

sketch10 = doc.addObject("Sketcher::SketchObject", "Sketch009")
body.addObject(sketch10)
sketch10.Placement = App.Placement(V(4.25, -4.25, 0), App.Rotation(V(0.707106781, 0.707106781, 0), V(0, 0, -0.999999999), V(-0.707106781, 0.707106781, 0), "ZXY"))
sketch10.addGeometry(Part.LineSegment(V(25.809397, -1, 0), V(25.809397, -11, 0)), False)
sketch10.addGeometry(Part.LineSegment(V(25.809397, -11, 0), V(33.809397, -11, 0)), False)
sketch10.addGeometry(Part.LineSegment(V(33.809397, -11, 0), V(33.809397, -9, 0)), False)
sketch10.addGeometry(Part.ArcOfCircle(Part.Circle(V(33.809397, -3, 0), V(0, 0, 1), 6), math.radians(180), math.radians(270)), False)
sketch10.addGeometry(Part.LineSegment(V(27.809397, -3, 0), V(27.809397, -1, 0)), False)
sketch10.addGeometry(Part.LineSegment(V(27.809397, -1, 0), V(25.809397, -1, 0)), False)
sketch10.addConstraint(Sketcher.Constraint("Coincident", 0, 2, 1, 1))
sketch10.addConstraint(Sketcher.Constraint("Coincident", 1, 2, 2, 1))
sketch10.addConstraint(Sketcher.Constraint("Coincident", 2, 2, 3, 2))
sketch10.addConstraint(Sketcher.Constraint("Tangent", 3, 1, 4, 1))
sketch10.addConstraint(Sketcher.Constraint("Coincident", 4, 2, 5, 1))
sketch10.addConstraint(Sketcher.Constraint("Coincident", 5, 2, 0, 1))
sketch10.addConstraint(Sketcher.Constraint("Vertical", 0))
sketch10.addConstraint(Sketcher.Constraint("Horizontal", 1))
sketch10.addConstraint(Sketcher.Constraint("Vertical", 2))
sketch10.addConstraint(Sketcher.Constraint("Vertical", 4))
sketch10.addConstraint(Sketcher.Constraint("Horizontal", 5))
sketch10.addConstraint(Sketcher.Constraint("Vertical", 3, 3, 1, 2))
sketch10.addConstraint(Sketcher.Constraint("Equal", 5, 2))
sketch10.addConstraint(Sketcher.Constraint("Equal", 2, 4))
sketch10.addConstraint(Sketcher.Constraint("Radius", 3, Q("6 mm")))
sketch10.addConstraint(Sketcher.Constraint("DistanceX", 1, 1, 1, 2, Q("8 mm")))
sketch10.addConstraint(Sketcher.Constraint("DistanceY", 3, 3, -1, 1, Q("3 mm")))
sketch10.addConstraint(Sketcher.Constraint("DistanceX", -1, 1, 3, 3, Q("33.809397 mm")))
pad5 = doc.addObject("PartDesign::Pad", "Pad004")
body.addObject(pad5)
pad5.Profile = sketch10
pad5.Length = 2
pad5.Reversed = True

sketch11 = doc.addObject("Sketcher::SketchObject", "Sketch010")
body.addObject(sketch11)
sketch11.AttachmentSupport = (doc.YZ_Plane, [""])
sketch11.MapMode = "FlatFace"
sketch11.AttachmentOffset = App.Placement(V(0, 0, 34.5), App.Rotation())
add_polygon(sketch11, [(22.656854, 14), (19.656854, 14), (19.656854, 11), (22.656854, 11)])
add_polygon(sketch11, [(-20, 14), (-23, 14), (-23, 11), (-20, 11)])
sketch11.addConstraint(Sketcher.Constraint("Horizontal", 0))
sketch11.addConstraint(Sketcher.Constraint("Vertical", 1))
sketch11.addConstraint(Sketcher.Constraint("Horizontal", 2))
sketch11.addConstraint(Sketcher.Constraint("Vertical", 3))
sketch11.addConstraint(Sketcher.Constraint("Horizontal", 4))
sketch11.addConstraint(Sketcher.Constraint("Vertical", 5))
sketch11.addConstraint(Sketcher.Constraint("Horizontal", 6))
sketch11.addConstraint(Sketcher.Constraint("Vertical", 7))
sketch11.addConstraint(Sketcher.Constraint("Horizontal", 3, 2, 4, 2))
sketch11.addConstraint(Sketcher.Constraint("Horizontal", 2, 2, 5, 2))
sketch11.addConstraint(Sketcher.Constraint("Equal", 2, 4))
sketch11.addConstraint(Sketcher.Constraint("Equal", 6, 1))
sketch11.addConstraint(Sketcher.Constraint("DistanceX", 0, 2, 0, 1, Q("3 mm")))
sketch11.addConstraint(Sketcher.Constraint("DistanceY", -1, 1, 0, 2, Q("14 mm")))
sketch11.addConstraint(Sketcher.Constraint("DistanceX", 4, 2, -1, 1, Q("23 mm")))
sketch11.addConstraint(Sketcher.Constraint("DistanceX", -1, 1, 0, 2, Q("19.656854 mm")))
pocket6 = doc.addObject("PartDesign::Pocket", "Pocket005")
body.addObject(pocket6)
pocket6.Profile = sketch11
pocket6.Length = 24.5

sketch12 = doc.addObject("Sketcher::SketchObject", "Sketch011")
body.addObject(sketch12)
sketch12.AttachmentSupport = (doc.YZ_Plane, [""])
sketch12.MapMode = "FlatFace"
sketch12.AttachmentOffset = App.Placement(V(0, 0, -34.5), App.Rotation())
add_polygon(sketch12, [(22.656854, 11), (19.656854, 11), (19.656854, 14), (22.656854, 14)])
add_polygon(sketch12, [(-20, 11), (-23, 11), (-23, 14), (-20, 14)])
sketch12.addConstraint(Sketcher.Constraint("Horizontal", 0))
sketch12.addConstraint(Sketcher.Constraint("Vertical", 1))
sketch12.addConstraint(Sketcher.Constraint("Horizontal", 2))
sketch12.addConstraint(Sketcher.Constraint("Vertical", 3))
sketch12.addConstraint(Sketcher.Constraint("Horizontal", 4))
sketch12.addConstraint(Sketcher.Constraint("Vertical", 5))
sketch12.addConstraint(Sketcher.Constraint("Horizontal", 6))
sketch12.addConstraint(Sketcher.Constraint("Vertical", 7))
sketch12.addConstraint(Sketcher.Constraint("Horizontal", 3, 2, 4, 2))
sketch12.addConstraint(Sketcher.Constraint("Horizontal", 2, 2, 5, 2))
sketch12.addConstraint(Sketcher.Constraint("Equal", 2, 4))
sketch12.addConstraint(Sketcher.Constraint("Equal", 6, 1))
sketch12.addConstraint(Sketcher.Constraint("DistanceX", 0, 2, 0, 1, Q("3 mm")))
sketch12.addConstraint(Sketcher.Constraint("DistanceY", -1, 1, 0, 2, Q("11 mm")))
sketch12.addConstraint(Sketcher.Constraint("DistanceX", 4, 2, -1, 1, Q("23 mm")))
sketch12.addConstraint(Sketcher.Constraint("DistanceX", -1, 1, 0, 2, Q("19.656854 mm")))
pocket7 = doc.addObject("PartDesign::Pocket", "Pocket006")
body.addObject(pocket7)
pocket7.Profile = sketch12
pocket7.Length = 24.5
pocket7.Reversed = True

sketch13 = doc.addObject("Sketcher::SketchObject", "Sketch012")
body.addObject(sketch13)
sketch13.AttachmentSupport = (doc.XZ_Plane, [""])
sketch13.MapMode = "FlatFace"
sketch13.AttachmentOffset = App.Placement(V(0, 0, -26), App.Rotation())
add_polygon(sketch13, [(4, 8), (4, 10), (6, 10), (6, 8)])
sketch13.addConstraint(Sketcher.Constraint("Vertical", 0))
sketch13.addConstraint(Sketcher.Constraint("Horizontal", 1))
sketch13.addConstraint(Sketcher.Constraint("Vertical", 2))
sketch13.addConstraint(Sketcher.Constraint("Horizontal", 3))
sketch13.addConstraint(Sketcher.Constraint("Equal", 3, 0))
sketch13.addConstraint(Sketcher.Constraint("DistanceX", 1, 1, 1, 2, Q("2 mm")))
sketch13.addConstraint(Sketcher.Constraint("DistanceX", -1, 1, 0, 2, Q("4 mm")))
sketch13.addConstraint(Sketcher.Constraint("DistanceY", -1, 1, 0, 2, Q("10 mm")))
pocket8 = doc.addObject("PartDesign::Pocket", "Pocket007")
body.addObject(pocket8)
pocket8.Profile = sketch13
pocket8.Type = "UpToFirst"
pocket8.Reversed = True

sketch14 = doc.addObject("Sketcher::SketchObject", "Sketch013")
body.addObject(sketch14)
sketch14.AttachmentSupport = (doc.XZ_Plane, [""])
sketch14.MapMode = "FlatFace"
sketch14.AttachmentOffset = App.Placement(V(0, 0, -26), App.Rotation())
add_polygon(sketch14, [(-6, 8), (-6, 10), (-4, 10), (-4, 8)])
sketch14.addConstraint(Sketcher.Constraint("Vertical", 0))
sketch14.addConstraint(Sketcher.Constraint("Horizontal", 1))
sketch14.addConstraint(Sketcher.Constraint("Vertical", 2))
sketch14.addConstraint(Sketcher.Constraint("Horizontal", 3))
sketch14.addConstraint(Sketcher.Constraint("Equal", 3, 0))
sketch14.addConstraint(Sketcher.Constraint("DistanceX", 1, 1, 1, 2, Q("2 mm")))
sketch14.addConstraint(Sketcher.Constraint("DistanceX", 0, 2, -1, 1, Q("6 mm")))
sketch14.addConstraint(Sketcher.Constraint("DistanceY", -1, 1, 0, 2, Q("10 mm")))
pocket9 = doc.addObject("PartDesign::Pocket", "Pocket008")
body.addObject(pocket9)
pocket9.Profile = sketch14
pocket9.Type = "UpToFirst"
pocket9.Reversed = True

sketch15 = doc.addObject("Sketcher::SketchObject", "Sketch014")
body.addObject(sketch15)
sketch15.AttachmentSupport = (doc.YZ_Plane, [""])
sketch15.MapMode = "FlatFace"
sketch15.AttachmentOffset = App.Placement(V(0, 0, 12), App.Rotation())
sketch15.addGeometry(Part.LineSegment(V(12, 1, 0), V(15.5, 1, 0)), False)
sketch15.addGeometry(Part.ArcOfCircle(Part.Circle(V(12, 1, 0), V(0, 0, 1), 3.5), math.radians(0), math.radians(90)), False)
sketch15.addGeometry(Part.LineSegment(V(12, 4.5, 0), V(12, 1, 0)), False)
sketch15.addConstraint(Sketcher.Constraint("Coincident", 0, 2, 1, 1))
sketch15.addConstraint(Sketcher.Constraint("Coincident", 1, 2, 2, 1))
sketch15.addConstraint(Sketcher.Constraint("Coincident", 2, 2, 0, 1))
sketch15.addConstraint(Sketcher.Constraint("Horizontal", 0))
sketch15.addConstraint(Sketcher.Constraint("Vertical", 2))
sketch15.addConstraint(Sketcher.Constraint("Coincident", 2, 2, 1, 3))
sketch15.addConstraint(Sketcher.Constraint("Radius", 1, Q("3.5 mm")))
sketch15.addConstraint(Sketcher.Constraint("DistanceX", -1, 1, 1, 3, Q("12 mm")))
sketch15.addConstraint(Sketcher.Constraint("DistanceY", -1, 1, 1, 3, Q("1 mm")))
pocket10 = doc.addObject("PartDesign::Pocket", "Pocket009")
body.addObject(pocket10)
pocket10.Profile = sketch15
pocket10.Length = 24

doc.recompute()
